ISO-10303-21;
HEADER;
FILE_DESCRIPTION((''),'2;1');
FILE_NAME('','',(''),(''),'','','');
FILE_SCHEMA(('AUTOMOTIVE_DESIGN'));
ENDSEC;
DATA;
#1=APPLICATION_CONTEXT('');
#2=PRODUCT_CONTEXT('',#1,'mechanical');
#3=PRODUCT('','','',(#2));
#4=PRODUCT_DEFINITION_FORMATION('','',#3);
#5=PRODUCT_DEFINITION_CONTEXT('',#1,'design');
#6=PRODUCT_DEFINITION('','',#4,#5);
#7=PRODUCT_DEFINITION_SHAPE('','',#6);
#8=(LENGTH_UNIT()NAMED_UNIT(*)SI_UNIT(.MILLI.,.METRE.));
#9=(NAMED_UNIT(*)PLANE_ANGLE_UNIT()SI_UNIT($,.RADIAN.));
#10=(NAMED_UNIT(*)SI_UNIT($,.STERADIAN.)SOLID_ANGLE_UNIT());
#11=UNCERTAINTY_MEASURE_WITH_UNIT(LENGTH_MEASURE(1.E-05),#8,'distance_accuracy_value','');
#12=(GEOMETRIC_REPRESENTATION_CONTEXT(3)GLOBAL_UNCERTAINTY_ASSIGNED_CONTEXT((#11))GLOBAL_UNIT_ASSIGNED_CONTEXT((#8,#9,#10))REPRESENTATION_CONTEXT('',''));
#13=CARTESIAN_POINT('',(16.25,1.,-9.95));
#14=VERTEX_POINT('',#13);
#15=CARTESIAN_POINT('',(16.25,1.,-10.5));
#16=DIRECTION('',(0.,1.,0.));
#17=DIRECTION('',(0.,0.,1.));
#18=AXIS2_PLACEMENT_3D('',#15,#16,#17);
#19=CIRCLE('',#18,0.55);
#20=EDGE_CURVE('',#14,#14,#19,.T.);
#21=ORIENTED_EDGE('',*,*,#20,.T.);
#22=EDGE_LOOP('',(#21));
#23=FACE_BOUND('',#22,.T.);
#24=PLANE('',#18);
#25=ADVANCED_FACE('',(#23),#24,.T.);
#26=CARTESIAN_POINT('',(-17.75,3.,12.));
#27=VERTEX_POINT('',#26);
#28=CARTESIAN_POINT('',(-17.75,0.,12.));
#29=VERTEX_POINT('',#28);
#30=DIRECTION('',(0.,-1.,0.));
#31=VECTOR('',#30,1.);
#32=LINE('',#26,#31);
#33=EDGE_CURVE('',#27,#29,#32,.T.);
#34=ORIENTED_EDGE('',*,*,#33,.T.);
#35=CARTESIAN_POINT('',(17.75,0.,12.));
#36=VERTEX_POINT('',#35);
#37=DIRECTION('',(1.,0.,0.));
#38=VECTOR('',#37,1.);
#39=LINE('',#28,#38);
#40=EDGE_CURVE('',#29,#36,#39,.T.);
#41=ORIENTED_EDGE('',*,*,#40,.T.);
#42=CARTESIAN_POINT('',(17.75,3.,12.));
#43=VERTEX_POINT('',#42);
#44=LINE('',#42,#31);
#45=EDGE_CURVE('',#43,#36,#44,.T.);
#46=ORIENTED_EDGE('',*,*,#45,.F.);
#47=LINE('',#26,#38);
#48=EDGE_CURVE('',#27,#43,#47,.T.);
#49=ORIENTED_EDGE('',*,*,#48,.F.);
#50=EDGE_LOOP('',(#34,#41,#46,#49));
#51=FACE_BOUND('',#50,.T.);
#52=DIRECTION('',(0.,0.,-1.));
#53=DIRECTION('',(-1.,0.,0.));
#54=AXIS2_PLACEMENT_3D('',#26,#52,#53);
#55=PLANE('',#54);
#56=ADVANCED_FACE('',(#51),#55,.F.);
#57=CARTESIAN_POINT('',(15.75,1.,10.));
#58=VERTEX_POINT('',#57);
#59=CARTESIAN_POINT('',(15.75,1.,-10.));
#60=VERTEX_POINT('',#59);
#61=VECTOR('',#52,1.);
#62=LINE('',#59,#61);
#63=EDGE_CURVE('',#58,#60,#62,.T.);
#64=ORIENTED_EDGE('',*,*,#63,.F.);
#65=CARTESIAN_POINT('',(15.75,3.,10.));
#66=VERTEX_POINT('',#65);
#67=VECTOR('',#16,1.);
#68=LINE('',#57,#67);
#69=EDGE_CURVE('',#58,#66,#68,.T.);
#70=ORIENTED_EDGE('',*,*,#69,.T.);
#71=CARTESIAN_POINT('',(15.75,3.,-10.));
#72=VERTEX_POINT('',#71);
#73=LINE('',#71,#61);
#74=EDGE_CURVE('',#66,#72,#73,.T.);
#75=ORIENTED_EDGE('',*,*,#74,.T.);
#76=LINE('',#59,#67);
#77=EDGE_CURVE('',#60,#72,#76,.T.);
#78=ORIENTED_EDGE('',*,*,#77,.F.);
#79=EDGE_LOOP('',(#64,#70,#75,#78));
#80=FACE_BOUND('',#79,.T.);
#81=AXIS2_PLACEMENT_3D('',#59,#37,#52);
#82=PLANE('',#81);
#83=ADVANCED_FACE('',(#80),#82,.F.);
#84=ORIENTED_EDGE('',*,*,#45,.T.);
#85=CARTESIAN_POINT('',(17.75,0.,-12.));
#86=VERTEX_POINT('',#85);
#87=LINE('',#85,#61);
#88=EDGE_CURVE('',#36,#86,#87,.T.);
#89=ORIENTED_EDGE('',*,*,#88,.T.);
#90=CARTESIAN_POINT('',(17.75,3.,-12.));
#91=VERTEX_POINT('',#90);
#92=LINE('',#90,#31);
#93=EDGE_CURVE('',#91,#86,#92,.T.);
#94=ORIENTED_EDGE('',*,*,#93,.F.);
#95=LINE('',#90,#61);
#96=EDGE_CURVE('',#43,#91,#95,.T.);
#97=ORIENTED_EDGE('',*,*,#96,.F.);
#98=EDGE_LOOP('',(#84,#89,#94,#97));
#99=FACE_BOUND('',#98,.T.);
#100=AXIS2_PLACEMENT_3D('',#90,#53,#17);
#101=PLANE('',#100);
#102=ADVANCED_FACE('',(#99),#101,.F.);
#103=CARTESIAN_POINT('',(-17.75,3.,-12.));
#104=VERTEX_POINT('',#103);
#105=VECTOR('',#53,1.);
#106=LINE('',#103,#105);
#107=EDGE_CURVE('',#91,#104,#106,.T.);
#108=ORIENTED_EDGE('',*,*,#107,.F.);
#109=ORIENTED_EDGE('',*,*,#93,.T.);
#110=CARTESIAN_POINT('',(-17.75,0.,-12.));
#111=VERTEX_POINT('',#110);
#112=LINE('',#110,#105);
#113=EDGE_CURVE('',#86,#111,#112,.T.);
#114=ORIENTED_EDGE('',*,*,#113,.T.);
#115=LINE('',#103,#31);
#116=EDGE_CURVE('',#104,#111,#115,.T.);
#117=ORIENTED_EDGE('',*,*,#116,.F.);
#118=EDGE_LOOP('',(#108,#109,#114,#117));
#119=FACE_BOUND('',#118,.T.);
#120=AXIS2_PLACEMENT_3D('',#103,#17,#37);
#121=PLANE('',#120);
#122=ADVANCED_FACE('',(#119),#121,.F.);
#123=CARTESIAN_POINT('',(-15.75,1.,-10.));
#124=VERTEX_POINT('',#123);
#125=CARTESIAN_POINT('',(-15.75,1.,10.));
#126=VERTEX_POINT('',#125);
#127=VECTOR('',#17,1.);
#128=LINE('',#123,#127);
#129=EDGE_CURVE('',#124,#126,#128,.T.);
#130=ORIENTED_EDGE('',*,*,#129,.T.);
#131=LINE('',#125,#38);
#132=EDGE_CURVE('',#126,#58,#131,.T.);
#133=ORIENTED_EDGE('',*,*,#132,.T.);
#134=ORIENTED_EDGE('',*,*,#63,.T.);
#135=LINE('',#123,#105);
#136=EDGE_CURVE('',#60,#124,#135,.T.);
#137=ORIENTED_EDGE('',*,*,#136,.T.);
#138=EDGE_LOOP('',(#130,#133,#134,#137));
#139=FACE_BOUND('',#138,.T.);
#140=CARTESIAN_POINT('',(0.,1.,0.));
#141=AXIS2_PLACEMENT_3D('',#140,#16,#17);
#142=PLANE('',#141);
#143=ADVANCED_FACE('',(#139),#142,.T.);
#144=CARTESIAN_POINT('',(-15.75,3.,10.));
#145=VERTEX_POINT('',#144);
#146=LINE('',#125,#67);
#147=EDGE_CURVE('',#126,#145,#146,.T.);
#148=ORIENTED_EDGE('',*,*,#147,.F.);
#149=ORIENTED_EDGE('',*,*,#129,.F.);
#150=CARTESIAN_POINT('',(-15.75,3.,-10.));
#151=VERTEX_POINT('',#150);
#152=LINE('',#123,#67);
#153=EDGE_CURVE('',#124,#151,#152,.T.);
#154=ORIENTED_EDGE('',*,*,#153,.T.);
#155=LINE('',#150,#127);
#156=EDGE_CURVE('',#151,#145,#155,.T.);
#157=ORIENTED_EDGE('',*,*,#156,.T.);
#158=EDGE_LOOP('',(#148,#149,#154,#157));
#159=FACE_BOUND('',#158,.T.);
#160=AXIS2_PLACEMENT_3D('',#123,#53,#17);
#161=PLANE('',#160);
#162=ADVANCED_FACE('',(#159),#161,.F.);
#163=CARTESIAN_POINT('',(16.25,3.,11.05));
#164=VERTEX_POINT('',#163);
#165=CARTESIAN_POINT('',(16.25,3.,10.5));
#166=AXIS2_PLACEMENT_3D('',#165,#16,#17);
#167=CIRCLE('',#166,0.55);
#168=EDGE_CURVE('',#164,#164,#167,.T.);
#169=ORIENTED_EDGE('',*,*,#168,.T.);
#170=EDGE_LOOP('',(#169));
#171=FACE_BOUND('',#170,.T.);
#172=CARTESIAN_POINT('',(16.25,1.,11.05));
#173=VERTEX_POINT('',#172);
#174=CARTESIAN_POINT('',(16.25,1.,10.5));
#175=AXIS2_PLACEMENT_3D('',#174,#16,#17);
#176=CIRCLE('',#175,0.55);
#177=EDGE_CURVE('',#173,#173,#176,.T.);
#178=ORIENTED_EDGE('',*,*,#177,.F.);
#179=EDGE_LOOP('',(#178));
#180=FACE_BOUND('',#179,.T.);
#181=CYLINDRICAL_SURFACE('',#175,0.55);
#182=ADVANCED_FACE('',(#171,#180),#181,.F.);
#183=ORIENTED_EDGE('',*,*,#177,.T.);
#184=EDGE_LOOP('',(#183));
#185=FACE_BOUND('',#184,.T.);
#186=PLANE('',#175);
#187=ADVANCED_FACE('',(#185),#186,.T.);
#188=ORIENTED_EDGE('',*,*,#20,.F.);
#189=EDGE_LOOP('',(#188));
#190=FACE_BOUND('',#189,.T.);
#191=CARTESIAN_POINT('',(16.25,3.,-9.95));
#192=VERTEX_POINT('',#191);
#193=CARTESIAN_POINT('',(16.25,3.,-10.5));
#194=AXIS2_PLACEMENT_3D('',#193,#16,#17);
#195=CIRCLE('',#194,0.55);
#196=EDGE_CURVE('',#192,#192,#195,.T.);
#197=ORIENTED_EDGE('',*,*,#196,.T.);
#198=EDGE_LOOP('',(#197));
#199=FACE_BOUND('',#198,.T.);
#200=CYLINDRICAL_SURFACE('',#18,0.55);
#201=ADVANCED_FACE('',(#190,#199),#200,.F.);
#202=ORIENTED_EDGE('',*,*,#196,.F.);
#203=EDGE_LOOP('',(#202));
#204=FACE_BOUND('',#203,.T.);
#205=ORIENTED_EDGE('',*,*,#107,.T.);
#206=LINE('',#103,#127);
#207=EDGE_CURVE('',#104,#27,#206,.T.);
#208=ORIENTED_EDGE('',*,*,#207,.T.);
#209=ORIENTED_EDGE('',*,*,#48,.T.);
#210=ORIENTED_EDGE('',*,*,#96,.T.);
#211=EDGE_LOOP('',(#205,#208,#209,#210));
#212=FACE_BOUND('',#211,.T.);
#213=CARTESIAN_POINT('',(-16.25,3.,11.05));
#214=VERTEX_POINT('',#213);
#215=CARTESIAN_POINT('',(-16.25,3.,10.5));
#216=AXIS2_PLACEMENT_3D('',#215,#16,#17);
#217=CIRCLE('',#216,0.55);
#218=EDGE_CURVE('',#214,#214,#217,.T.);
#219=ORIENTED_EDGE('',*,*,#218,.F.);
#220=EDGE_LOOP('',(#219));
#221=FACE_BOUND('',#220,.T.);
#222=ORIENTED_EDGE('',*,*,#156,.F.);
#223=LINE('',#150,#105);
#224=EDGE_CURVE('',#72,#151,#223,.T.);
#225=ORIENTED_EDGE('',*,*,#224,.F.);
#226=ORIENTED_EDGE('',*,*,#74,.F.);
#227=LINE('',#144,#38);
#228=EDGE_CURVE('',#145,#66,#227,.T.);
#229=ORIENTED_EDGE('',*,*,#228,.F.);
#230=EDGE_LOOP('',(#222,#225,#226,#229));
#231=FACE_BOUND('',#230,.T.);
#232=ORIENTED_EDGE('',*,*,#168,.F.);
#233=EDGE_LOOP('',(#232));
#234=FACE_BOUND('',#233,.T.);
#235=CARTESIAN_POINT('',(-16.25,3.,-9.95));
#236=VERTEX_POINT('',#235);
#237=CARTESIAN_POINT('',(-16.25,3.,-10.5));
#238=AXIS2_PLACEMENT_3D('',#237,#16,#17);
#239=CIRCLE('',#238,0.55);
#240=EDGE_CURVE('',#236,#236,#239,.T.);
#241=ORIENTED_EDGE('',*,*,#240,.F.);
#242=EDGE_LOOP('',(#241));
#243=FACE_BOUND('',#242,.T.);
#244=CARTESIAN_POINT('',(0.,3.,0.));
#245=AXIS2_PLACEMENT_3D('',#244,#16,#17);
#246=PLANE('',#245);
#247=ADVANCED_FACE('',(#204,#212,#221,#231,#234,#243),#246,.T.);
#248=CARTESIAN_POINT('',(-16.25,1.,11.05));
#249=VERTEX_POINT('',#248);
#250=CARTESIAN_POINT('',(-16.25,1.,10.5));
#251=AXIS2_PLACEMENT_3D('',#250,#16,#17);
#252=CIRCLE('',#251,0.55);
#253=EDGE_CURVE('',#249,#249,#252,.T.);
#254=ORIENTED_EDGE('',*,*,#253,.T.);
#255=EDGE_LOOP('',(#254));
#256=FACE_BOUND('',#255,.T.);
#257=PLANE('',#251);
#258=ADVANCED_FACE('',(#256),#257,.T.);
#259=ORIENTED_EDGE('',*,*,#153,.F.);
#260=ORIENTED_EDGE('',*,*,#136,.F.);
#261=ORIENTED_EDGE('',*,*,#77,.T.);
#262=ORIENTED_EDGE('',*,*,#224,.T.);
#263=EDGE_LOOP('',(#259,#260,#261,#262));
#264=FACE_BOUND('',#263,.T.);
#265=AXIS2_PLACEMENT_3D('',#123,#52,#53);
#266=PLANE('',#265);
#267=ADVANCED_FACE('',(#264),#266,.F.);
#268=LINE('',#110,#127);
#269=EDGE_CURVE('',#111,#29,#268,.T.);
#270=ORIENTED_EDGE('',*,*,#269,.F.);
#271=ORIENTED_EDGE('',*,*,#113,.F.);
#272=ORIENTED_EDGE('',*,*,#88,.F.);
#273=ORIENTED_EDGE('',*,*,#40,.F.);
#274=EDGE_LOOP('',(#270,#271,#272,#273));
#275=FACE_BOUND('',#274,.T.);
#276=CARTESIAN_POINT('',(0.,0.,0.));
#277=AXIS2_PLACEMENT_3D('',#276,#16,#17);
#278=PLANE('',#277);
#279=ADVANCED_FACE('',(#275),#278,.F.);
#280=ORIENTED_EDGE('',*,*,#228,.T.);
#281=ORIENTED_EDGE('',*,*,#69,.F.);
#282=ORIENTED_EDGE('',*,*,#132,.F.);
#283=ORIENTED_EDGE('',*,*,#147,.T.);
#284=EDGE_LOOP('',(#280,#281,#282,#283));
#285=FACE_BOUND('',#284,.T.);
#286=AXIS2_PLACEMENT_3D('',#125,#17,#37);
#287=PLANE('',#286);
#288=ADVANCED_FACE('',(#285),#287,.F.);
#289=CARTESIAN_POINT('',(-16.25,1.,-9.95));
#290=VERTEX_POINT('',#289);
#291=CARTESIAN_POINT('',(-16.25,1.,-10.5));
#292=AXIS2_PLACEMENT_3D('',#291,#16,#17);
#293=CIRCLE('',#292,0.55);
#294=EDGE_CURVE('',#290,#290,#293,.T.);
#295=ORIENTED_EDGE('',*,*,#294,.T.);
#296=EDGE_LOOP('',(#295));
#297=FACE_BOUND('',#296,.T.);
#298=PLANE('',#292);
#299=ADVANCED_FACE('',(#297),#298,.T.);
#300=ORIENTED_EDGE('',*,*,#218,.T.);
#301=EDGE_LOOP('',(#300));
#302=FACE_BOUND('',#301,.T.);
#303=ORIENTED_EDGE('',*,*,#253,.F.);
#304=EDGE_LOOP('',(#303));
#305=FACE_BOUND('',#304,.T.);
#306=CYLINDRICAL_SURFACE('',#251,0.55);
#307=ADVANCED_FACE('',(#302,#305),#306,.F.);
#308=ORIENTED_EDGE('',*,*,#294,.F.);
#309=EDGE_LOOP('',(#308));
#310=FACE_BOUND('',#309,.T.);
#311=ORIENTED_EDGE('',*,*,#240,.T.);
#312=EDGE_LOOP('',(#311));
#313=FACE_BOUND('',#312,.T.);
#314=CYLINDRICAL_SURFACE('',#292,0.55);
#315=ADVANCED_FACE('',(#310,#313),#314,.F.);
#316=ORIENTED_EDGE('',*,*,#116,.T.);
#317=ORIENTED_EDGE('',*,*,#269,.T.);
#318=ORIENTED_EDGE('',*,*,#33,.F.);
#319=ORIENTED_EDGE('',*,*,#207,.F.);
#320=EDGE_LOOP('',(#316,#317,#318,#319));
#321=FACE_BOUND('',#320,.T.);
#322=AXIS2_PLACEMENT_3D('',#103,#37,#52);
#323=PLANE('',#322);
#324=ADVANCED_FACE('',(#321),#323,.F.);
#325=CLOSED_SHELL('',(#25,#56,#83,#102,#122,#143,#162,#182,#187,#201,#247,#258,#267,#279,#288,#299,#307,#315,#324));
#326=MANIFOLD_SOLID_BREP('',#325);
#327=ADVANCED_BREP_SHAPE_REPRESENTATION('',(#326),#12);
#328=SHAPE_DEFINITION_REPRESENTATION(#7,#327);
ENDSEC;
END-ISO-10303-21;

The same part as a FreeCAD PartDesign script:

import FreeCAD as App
import Part
import Sketcher

V = App.Vector


def add_polygon(sketch, points):
    """Adds a closed chain of lines whose ends are joined by coincident constraints."""
    first, n = sketch.GeometryCount, len(points)
    for a, b in zip(points, points[1:] + points[:1]):
        sketch.addGeometry(Part.LineSegment(App.Vector(*a, 0), App.Vector(*b, 0)), False)
    for i in range(n):
        sketch.addConstraint(Sketcher.Constraint("Coincident", first + i, 2, first + (i + 1) % n, 1))

doc = App.newDocument("Part")
body = doc.addObject("PartDesign::Body", "Body")

# Sketch on XZ plane
sketch1 = doc.addObject("Sketcher::SketchObject", "Sketch")
body.addObject(sketch1)
sketch1.AttachmentSupport = (doc.XZ_Plane, [""])
sketch1.MapMode = "FlatFace"
add_polygon(sketch1, [(-17.75, -12), (-17.75, 12), (17.75, 12), (17.75, -12)])  # lines 0-3
sketch1.addConstraint(Sketcher.Constraint("Vertical", 0))
sketch1.addConstraint(Sketcher.Constraint("Horizontal", 1))
sketch1.addConstraint(Sketcher.Constraint("Vertical", 2))
sketch1.addConstraint(Sketcher.Constraint("Horizontal", 3))
sketch1.addConstraint(Sketcher.Constraint("Symmetric", 0, 2, 2, 2, -1, 1))
sketch1.addConstraint(Sketcher.Constraint("DistanceY", 0, 1, 0, 2, 24.0))
sketch1.addConstraint(Sketcher.Constraint("DistanceX", 1, 1, 1, 2, 35.5))
pad1 = doc.addObject("PartDesign::Pad", "Pad")
body.addObject(pad1)
pad1.Profile = sketch1
pad1.Length = 3
pad1.Reversed = True

# Sketch on XZ plane
sketch2 = doc.addObject("Sketcher::SketchObject", "Sketch001")
body.addObject(sketch2)
sketch2.AttachmentSupport = (doc.XZ_Plane, [""])
sketch2.MapMode = "FlatFace"
sketch2.AttachmentOffset = App.Placement(V(0, 0, -3), App.Rotation())
add_polygon(sketch2, [(-15.75, -10), (-15.75, 10), (15.75, 10), (15.75, -10)])  # lines 0-3
sketch2.addConstraint(Sketcher.Constraint("Vertical", 0))
sketch2.addConstraint(Sketcher.Constraint("Horizontal", 1))
sketch2.addConstraint(Sketcher.Constraint("Vertical", 2))
sketch2.addConstraint(Sketcher.Constraint("Horizontal", 3))
sketch2.addConstraint(Sketcher.Constraint("Symmetric", 0, 2, 2, 2, -1, 1))
sketch2.addConstraint(Sketcher.Constraint("DistanceY", 0, 1, 0, 2, 20.0))
sketch2.addConstraint(Sketcher.Constraint("DistanceX", 1, 1, 1, 2, 31.5))
pocket1 = doc.addObject("PartDesign::Pocket", "Pocket")
body.addObject(pocket1)
pocket1.Profile = sketch2
pocket1.Length = 2
pocket1.Reversed = True

# Sketch on XZ plane
sketch3 = doc.addObject("Sketcher::SketchObject", "Sketch002")
body.addObject(sketch3)
sketch3.AttachmentSupport = (doc.XZ_Plane, [""])
sketch3.MapMode = "FlatFace"
sketch3.AttachmentOffset = App.Placement(V(0, 0, -3), App.Rotation())
sketch3.addGeometry(Part.Circle(V(-16.25, -10.5, 0), V(0, 0, 1), 0.55), False)
sketch3.addGeometry(Part.Circle(V(-16.25, 10.5, 0), V(0, 0, 1), 0.55), False)
sketch3.addGeometry(Part.Circle(V(16.25, 10.5, 0), V(0, 0, 1), 0.55), False)
sketch3.addGeometry(Part.Circle(V(16.25, -10.5, 0), V(0, 0, 1), 0.55), False)
sketch3.addConstraint(Sketcher.Constraint("Equal", 0, 1))
sketch3.addConstraint(Sketcher.Constraint("Equal", 1, 2))
sketch3.addConstraint(Sketcher.Constraint("Equal", 2, 3))
sketch3.addConstraint(Sketcher.Constraint("Symmetric", 0, 3, 2, 3, -1, 1))
sketch3.addConstraint(Sketcher.Constraint("Symmetric", 1, 3, 3, 3, -1, 1))
sketch3.addConstraint(Sketcher.Constraint("Symmetric", 1, 3, 2, 3, -2))
sketch3.addConstraint(Sketcher.Constraint("Diameter", 0, 1.1))
sketch3.addConstraint(Sketcher.Constraint("DistanceY", 0, 3, 1, 3, 21.0))
sketch3.addConstraint(Sketcher.Constraint("DistanceX", 1, 3, 2, 3, 32.5))
pocket2 = doc.addObject("PartDesign::Pocket", "Pocket001")
body.addObject(pocket2)
pocket2.Profile = sketch3
pocket2.Length = 2
pocket2.Reversed = True

doc.recompute()
